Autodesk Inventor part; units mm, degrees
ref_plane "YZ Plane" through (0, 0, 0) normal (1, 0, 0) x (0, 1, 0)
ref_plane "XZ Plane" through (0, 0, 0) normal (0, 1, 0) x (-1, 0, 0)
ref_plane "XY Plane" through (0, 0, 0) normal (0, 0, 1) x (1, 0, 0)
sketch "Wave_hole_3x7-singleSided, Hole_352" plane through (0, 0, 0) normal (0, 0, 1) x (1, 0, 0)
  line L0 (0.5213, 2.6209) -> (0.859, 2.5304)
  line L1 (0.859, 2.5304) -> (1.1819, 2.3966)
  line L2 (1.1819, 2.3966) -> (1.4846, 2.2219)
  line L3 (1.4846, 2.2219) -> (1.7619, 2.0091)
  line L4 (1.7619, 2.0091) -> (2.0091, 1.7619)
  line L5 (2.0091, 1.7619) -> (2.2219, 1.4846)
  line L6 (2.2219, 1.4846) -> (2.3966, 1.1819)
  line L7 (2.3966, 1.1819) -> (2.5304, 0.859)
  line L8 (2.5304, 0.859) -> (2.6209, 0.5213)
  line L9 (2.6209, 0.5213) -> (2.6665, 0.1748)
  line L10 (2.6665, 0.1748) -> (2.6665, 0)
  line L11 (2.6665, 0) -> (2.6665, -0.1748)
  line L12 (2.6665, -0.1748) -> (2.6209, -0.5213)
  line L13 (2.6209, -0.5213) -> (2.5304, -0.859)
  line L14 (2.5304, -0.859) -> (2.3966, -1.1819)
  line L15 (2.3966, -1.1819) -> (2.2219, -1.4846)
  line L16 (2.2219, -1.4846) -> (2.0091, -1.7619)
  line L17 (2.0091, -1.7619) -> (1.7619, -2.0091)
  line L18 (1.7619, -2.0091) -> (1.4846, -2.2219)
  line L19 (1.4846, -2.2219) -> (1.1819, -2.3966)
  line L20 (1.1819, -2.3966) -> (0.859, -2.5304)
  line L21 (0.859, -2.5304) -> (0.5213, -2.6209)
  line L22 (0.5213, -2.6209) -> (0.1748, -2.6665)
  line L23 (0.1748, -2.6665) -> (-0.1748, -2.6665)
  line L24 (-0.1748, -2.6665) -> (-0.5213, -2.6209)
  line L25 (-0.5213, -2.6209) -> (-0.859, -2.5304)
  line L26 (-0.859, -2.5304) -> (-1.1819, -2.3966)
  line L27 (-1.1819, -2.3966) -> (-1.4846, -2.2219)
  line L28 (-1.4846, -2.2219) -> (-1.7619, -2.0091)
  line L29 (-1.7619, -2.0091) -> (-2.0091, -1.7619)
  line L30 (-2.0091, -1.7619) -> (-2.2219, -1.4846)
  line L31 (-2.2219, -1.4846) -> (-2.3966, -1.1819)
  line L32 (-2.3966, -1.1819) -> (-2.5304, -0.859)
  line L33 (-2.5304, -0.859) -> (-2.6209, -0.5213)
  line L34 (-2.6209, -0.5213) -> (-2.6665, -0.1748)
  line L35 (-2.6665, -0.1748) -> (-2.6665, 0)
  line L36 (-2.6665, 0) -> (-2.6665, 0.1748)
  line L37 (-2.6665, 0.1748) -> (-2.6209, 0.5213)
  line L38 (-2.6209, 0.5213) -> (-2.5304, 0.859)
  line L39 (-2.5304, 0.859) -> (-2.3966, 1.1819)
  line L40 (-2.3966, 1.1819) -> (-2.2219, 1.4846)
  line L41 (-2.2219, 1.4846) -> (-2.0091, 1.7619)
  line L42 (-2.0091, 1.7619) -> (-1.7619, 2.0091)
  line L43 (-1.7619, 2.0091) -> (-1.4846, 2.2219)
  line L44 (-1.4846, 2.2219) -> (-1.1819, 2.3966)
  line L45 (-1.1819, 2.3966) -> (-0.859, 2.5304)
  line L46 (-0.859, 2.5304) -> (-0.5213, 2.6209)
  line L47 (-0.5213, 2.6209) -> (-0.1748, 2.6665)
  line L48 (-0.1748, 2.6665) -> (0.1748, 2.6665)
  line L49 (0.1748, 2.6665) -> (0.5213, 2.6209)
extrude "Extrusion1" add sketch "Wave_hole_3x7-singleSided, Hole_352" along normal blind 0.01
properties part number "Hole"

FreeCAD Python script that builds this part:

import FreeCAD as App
import Part
import Sketcher
from FreeCAD import Vector
Q = App.Units.Quantity


def add_polygon(sketch, points):
    """Adds a closed chain of lines whose ends are joined by coincident constraints."""
    first, n = sketch.GeometryCount, len(points)
    for a, b in zip(points, points[1:] + points[:1]):
        sketch.addGeometry(Part.LineSegment(App.Vector(*a, 0), App.Vector(*b, 0)), False)
    for i in range(n):
        sketch.addConstraint(Sketcher.Constraint("Coincident", first + i, 2, first + (i + 1) % n, 1))

doc = App.newDocument("Part")
body = doc.addObject("PartDesign::Body", "Body")

# Sketch on XY plane
sketch1 = body.newObject("Sketcher::SketchObject", "Sketch")
sketch1.AttachmentSupport = (doc.getObject("XY_Plane"), [""])
sketch1.MapMode = "FlatFace"
add_polygon(sketch1, [(0.86, 2.53), (0.52, 2.62), (0.17, 2.67), (-0.17, 2.67), (-0.52, 2.62), (-0.86, 2.53), (-1.18, 2.4), (-1.48, 2.22), (-1.76, 2.01), (-2.01, 1.76), (-2.22, 1.48), (-2.4, 1.18), (-2.53, 0.86), (-2.62, 0.52), (-2.67, 0.17), (-2.67, -0.17), (-2.62, -0.52), (-2.53, -0.86), (-2.4, -1.18), (-2.22, -1.48), (-2.01, -1.76), (-1.76, -2.01), (-1.48, -2.22), (-1.18, -2.4), (-0.86, -2.53), (-0.52, -2.62), (-0.17, -2.67), (0.17, -2.67), (0.52, -2.62), (0.86, -2.53), (1.18, -2.4), (1.48, -2.22), (1.76, -2.01), (2.01, -1.76), (2.22, -1.48), (2.4, -1.18), (2.53, -0.86), (2.62, -0.52), (2.67, -0.17), (2.67, 0.17), (2.62, 0.52), (2.53, 0.86), (2.4, 1.18), (2.22, 1.48), (2.01, 1.76), (1.76, 2.01), (1.48, 2.22), (1.18, 2.4)])  # lines 0-47
sketch1.addConstraint(Sketcher.Constraint("Horizontal", 2))
sketch1.addConstraint(Sketcher.Constraint("Vertical", 14))
sketch1.addConstraint(Sketcher.Constraint("Horizontal", 26))
sketch1.addConstraint(Sketcher.Constraint("Vertical", 38))
sketch1.addConstraint(Sketcher.Constraint("Symmetric", 0, 2, 24, 2, -1, 1))
sketch1.addConstraint(Sketcher.Constraint("Symmetric", 1, 2, 25, 2, -1, 1))
sketch1.addConstraint(Sketcher.Constraint("Symmetric", 3, 2, 27, 2, -1, 1))
sketch1.addConstraint(Sketcher.Constraint("Symmetric", 4, 2, 28, 2, -1, 1))
sketch1.addConstraint(Sketcher.Constraint("Symmetric", 5, 2, 29, 2, -1, 1))
sketch1.addConstraint(Sketcher.Constraint("Symmetric", 6, 2, 30, 2, -1, 1))
sketch1.addConstraint(Sketcher.Constraint("Symmetric", 7, 2, 31, 2, -1, 1))
sketch1.addConstraint(Sketcher.Constraint("Symmetric", 8, 2, 32, 2, -1, 1))
sketch1.addConstraint(Sketcher.Constraint("Symmetric", 9, 2, 33, 2, -1, 1))
sketch1.addConstraint(Sketcher.Constraint("Symmetric", 10, 2, 34, 2, -1, 1))
sketch1.addConstraint(Sketcher.Constraint("Symmetric", 11, 2, 35, 2, -1, 1))
sketch1.addConstraint(Sketcher.Constraint("Symmetric", 12, 2, 36, 2, -1, 1))
sketch1.addConstraint(Sketcher.Constraint("Symmetric", 13, 2, 37, 2, -1, 1))
sketch1.addConstraint(Sketcher.Constraint("Symmetric", 15, 2, 39, 2, -1, 1))
sketch1.addConstraint(Sketcher.Constraint("Symmetric", 16, 2, 40, 2, -1, 1))
sketch1.addConstraint(Sketcher.Constraint("Symmetric", 17, 2, 41, 2, -1, 1))
sketch1.addConstraint(Sketcher.Constraint("Symmetric", 18, 2, 42, 2, -1, 1))
sketch1.addConstraint(Sketcher.Constraint("Symmetric", 19, 2, 43, 2, -1, 1))
sketch1.addConstraint(Sketcher.Constraint("Symmetric", 20, 2, 44, 2, -1, 1))
sketch1.addConstraint(Sketcher.Constraint("Symmetric", 21, 2, 45, 2, -1, 1))
sketch1.addConstraint(Sketcher.Constraint("Symmetric", 22, 2, 46, 2, -1, 1))
sketch1.addConstraint(Sketcher.Constraint("Symmetric", 23, 2, 47, 2, -1, 1))
sketch1.addConstraint(Sketcher.Constraint("Symmetric", 0, 2, 3, 2, -2))
sketch1.addConstraint(Sketcher.Constraint("Symmetric", 23, 2, 28, 2, -2))
sketch1.addConstraint(Sketcher.Constraint("Symmetric", 22, 2, 29, 2, -2))
sketch1.addConstraint(Sketcher.Constraint("Symmetric", 21, 2, 30, 2, -2))
sketch1.addConstraint(Sketcher.Constraint("Symmetric", 20, 2, 31, 2, -2))
sketch1.addConstraint(Sketcher.Constraint("Symmetric", 19, 2, 32, 2, -2))
sketch1.addConstraint(Sketcher.Constraint("Symmetric", 18, 2, 33, 2, -2))
sketch1.addConstraint(Sketcher.Constraint("Symmetric", 17, 2, 34, 2, -2))
sketch1.addConstraint(Sketcher.Constraint("Symmetric", 16, 2, 35, 2, -2))
sketch1.addConstraint(Sketcher.Constraint("Symmetric", 15, 2, 36, 2, -2))
sketch1.addConstraint(Sketcher.Constraint("Perpendicular", 0, 12))
sketch1.addConstraint(Sketcher.Constraint("Perpendicular", 1, 13))
sketch1.addConstraint(Sketcher.Constraint("Perpendicular", 3, 15))
sketch1.addConstraint(Sketcher.Constraint("Perpendicular", 5, 17))
sketch1.addConstraint(Sketcher.Constraint("Perpendicular", 6, 18))
sketch1.addConstraint(Sketcher.Constraint("Perpendicular", 7, 19))
sketch1.addConstraint(Sketcher.Constraint("Perpendicular", 8, 20))
sketch1.addConstraint(Sketcher.Constraint("Perpendicular", 15, 27))
sketch1.addConstraint(Sketcher.Constraint("Perpendicular", 27, 39))
sketch1.addConstraint(Sketcher.Constraint("Horizontal", 14, 2, 37, 2))
sketch1.addConstraint(Sketcher.Constraint("Equal", 26, 14))
sketch1.addConstraint(Sketcher.Constraint("Equal", 0, 1))
sketch1.addConstraint(Sketcher.Constraint("Equal", 4, 5))
sketch1.addConstraint(Sketcher.Constraint("Equal", 5, 6))
sketch1.addConstraint(Sketcher.Constraint("Equal", 6, 7))
sketch1.addConstraint(Sketcher.Constraint("Equal", 7, 8))
sketch1.addConstraint(Sketcher.Constraint("Equal", 8, 9))
sketch1.addConstraint(Sketcher.Constraint("Equal", 9, 10))
sketch1.addConstraint(Sketcher.Constraint("Equal", 10, 11))
sketch1.addConstraint(Sketcher.Constraint("Equal", 11, 12))
sketch1.addConstraint(Sketcher.Constraint("Equal", 12, 13))
sketch1.addConstraint(Sketcher.Constraint("Angle", 6, Q("-150.009 deg")))
sketch1.addConstraint(Sketcher.Constraint("DistanceY", 5, 2, 2, 2, 0.27))
sketch1.addConstraint(Sketcher.Constraint("DistanceX", 7, 2, 5, 2, 0.58))
sketch1.addConstraint(Sketcher.Constraint("DistanceY", 8, 2, 6, 2, 0.46))
sketch1.addConstraint(Sketcher.Constraint("DistanceX", 8, 2, 4, 2, 1.15))
sketch1.addConstraint(Sketcher.Constraint("DistanceX", 2, 2, 2, 1, 0.3496))
sketch1.addConstraint(Sketcher.Constraint("DistanceY", -1, 1, 0, 2, 2.621))
pad1 = body.newObject("PartDesign::Pad", "Pad")
pad1.Profile = sketch1
pad1.Length = 0.01

doc.recompute()
